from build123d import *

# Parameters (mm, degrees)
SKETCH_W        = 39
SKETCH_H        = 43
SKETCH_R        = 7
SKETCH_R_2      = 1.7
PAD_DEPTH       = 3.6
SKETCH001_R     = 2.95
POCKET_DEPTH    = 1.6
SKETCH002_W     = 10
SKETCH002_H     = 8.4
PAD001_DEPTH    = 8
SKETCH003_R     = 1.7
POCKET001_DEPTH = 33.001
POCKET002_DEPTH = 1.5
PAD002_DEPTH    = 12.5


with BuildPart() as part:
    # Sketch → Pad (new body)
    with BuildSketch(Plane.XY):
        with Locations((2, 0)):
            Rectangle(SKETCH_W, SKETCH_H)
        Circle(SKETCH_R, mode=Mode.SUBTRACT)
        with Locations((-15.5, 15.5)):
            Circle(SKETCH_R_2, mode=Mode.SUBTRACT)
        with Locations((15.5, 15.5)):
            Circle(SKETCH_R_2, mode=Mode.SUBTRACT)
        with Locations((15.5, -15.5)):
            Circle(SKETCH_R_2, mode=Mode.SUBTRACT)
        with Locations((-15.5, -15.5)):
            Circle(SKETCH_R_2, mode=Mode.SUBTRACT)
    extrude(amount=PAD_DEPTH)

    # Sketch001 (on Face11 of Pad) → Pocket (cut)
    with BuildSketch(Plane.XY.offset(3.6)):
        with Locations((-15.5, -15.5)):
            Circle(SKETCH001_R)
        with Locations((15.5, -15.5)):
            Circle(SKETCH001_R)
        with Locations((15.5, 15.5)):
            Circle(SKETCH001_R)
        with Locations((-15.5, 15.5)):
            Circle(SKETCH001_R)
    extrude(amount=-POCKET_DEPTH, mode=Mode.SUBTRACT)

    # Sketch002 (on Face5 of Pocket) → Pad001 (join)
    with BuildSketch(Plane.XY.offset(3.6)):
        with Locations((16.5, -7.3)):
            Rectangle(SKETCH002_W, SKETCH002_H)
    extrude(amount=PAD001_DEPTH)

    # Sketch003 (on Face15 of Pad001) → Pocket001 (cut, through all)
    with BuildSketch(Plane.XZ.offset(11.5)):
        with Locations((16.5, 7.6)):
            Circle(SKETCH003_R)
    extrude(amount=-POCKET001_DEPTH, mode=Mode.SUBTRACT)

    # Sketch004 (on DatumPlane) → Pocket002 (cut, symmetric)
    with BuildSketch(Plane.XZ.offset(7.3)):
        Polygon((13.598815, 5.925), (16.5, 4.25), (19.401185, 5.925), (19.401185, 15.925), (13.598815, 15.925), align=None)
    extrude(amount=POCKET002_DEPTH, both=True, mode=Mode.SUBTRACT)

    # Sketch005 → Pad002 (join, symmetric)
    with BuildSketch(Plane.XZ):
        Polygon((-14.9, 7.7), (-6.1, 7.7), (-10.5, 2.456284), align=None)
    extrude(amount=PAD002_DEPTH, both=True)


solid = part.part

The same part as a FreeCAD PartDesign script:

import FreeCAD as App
import Part
import Sketcher

V = App.Vector
Q = App.Units.Quantity


def add_polygon(sketch, points):
    """Adds a closed chain of lines whose ends are joined by coincident constraints."""
    first, n = sketch.GeometryCount, len(points)
    for a, b in zip(points, points[1:] + points[:1]):
        sketch.addGeometry(Part.LineSegment(App.Vector(*a, 0), App.Vector(*b, 0)), False)
    for i in range(n):
        sketch.addConstraint(Sketcher.Constraint("Coincident", first + i, 2, first + (i + 1) % n, 1))

doc = App.newDocument("Part")
body = doc.addObject("PartDesign::Body", "Body")

# Sketch on XY plane
sketch1 = doc.addObject("Sketcher::SketchObject", "Sketch")
body.addObject(sketch1)
sketch1.AttachmentSupport = (doc.XY_Plane, [""])
sketch1.MapMode = "FlatFace"
add_polygon(sketch1, [(-17.5, 21.5), (-17.5, -21.5), (21.5, -21.5), (21.5, 21.5)])  # lines 0-3
sketch1.addGeometry(Part.Circle(V(-15.5, -15.5, 0), V(0, 0, 1), 1.7), False)  # 4
sketch1.addGeometry(Part.Circle(V(15.5, -15.5, 0), V(0, 0, 1), 1.7), False)  # 5
sketch1.addGeometry(Part.Circle(V(-15.5, 15.5, 0), V(0, 0, 1), 1.7), False)  # 6
sketch1.addGeometry(Part.Circle(V(0, 0, 0), V(0, 0, 1), 7), False)  # 7
sketch1.addGeometry(Part.Circle(V(15.5, 15.5, 0), V(0, 0, 1), 1.7), False)  # 8
sketch1.addConstraint(Sketcher.Constraint("Vertical", 0))
sketch1.addConstraint(Sketcher.Constraint("Horizontal", 1))
sketch1.addConstraint(Sketcher.Constraint("Vertical", 2))
sketch1.addConstraint(Sketcher.Constraint("Horizontal", 3))
sketch1.addConstraint(Sketcher.Constraint("Coincident", 7, 3, -1, 1))
sketch1.addConstraint(Sketcher.Constraint("Equal", 4, 5))
sketch1.addConstraint(Sketcher.Constraint("Equal", 5, 6))
sketch1.addConstraint(Sketcher.Constraint("Equal", 6, 8))
sketch1.addConstraint(Sketcher.Constraint("Symmetric", 5, 3, 6, 3, -1, 1))
sketch1.addConstraint(Sketcher.Constraint("Symmetric", 4, 3, 8, 3, -1, 1))
sketch1.addConstraint(Sketcher.Constraint("Symmetric", 4, 3, 5, 3, -2))
sketch1.addConstraint(Sketcher.Constraint("Diameter", 7, 14.0))
sketch1.addConstraint(Sketcher.Constraint("Diameter", 4, 3.4))
sketch1.addConstraint(Sketcher.Constraint("DistanceX", 1, 1, 1, 2, 39.0))
sketch1.addConstraint(Sketcher.Constraint("DistanceY", 0, 2, 0, 1, 43.0))
sketch1.addConstraint(Sketcher.Constraint("DistanceX", 4, 3, 5, 3, 31.0))
sketch1.addConstraint(Sketcher.Constraint("DistanceY", 4, 3, 6, 3, 31.0))
sketch1.addConstraint(Sketcher.Constraint("DistanceX", 0, 2, 4, 3, 2.0))
sketch1.addConstraint(Sketcher.Constraint("DistanceY", 0, 2, 4, 3, 6.0))
pad1 = doc.addObject("PartDesign::Pad", "Pad")
body.addObject(pad1)
pad1.Profile = sketch1
pad1.Length = 3.6

# Sketch on XY plane
sketch2 = doc.addObject("Sketcher::SketchObject", "Sketch001")
body.addObject(sketch2)
sketch2.AttachmentSupport = (doc.XY_Plane, [""])
sketch2.MapMode = "FlatFace"
sketch2.AttachmentOffset = App.Placement(V(0, 0, 3.6), App.Rotation())
sketch2.addGeometry(Part.Circle(V(-15.5, -15.5, 0), V(0, 0, 1), 3), False)
sketch2.addGeometry(Part.Circle(V(15.5, -15.5, 0), V(0, 0, 1), 3), False)
sketch2.addGeometry(Part.Circle(V(15.5, 15.5, 0), V(0, 0, 1), 3), False)
sketch2.addGeometry(Part.Circle(V(-15.5, 15.5, 0), V(0, 0, 1), 3), False)
sketch2.addConstraint(Sketcher.Constraint("Equal", 0, 1))
sketch2.addConstraint(Sketcher.Constraint("Equal", 1, 2))
sketch2.addConstraint(Sketcher.Constraint("Equal", 2, 3))
sketch2.addConstraint(Sketcher.Constraint("Symmetric", 0, 3, 2, 3, -1, 1))
sketch2.addConstraint(Sketcher.Constraint("Symmetric", 1, 3, 3, 3, -1, 1))
sketch2.addConstraint(Sketcher.Constraint("Symmetric", 0, 3, 1, 3, -2))
sketch2.addConstraint(Sketcher.Constraint("Diameter", 0, 5.9))
sketch2.addConstraint(Sketcher.Constraint("DistanceX", 0, 3, 1, 3, 31.0))
sketch2.addConstraint(Sketcher.Constraint("DistanceY", 1, 3, 2, 3, 31.0))
pocket1 = doc.addObject("PartDesign::Pocket", "Pocket")
body.addObject(pocket1)
pocket1.Profile = sketch2
pocket1.Length = 1.6

# Sketch on XY plane
sketch3 = doc.addObject("Sketcher::SketchObject", "Sketch002")
body.addObject(sketch3)
sketch3.AttachmentSupport = (doc.XY_Plane, [""])
sketch3.MapMode = "FlatFace"
sketch3.AttachmentOffset = App.Placement(V(0, 0, 3.6), App.Rotation())
add_polygon(sketch3, [(12, -3), (12, -12), (22, -12), (22, -3)])  # lines 0-3
sketch3.addConstraint(Sketcher.Constraint("Vertical", 0))
sketch3.addConstraint(Sketcher.Constraint("Horizontal", 1))
sketch3.addConstraint(Sketcher.Constraint("Vertical", 2))
sketch3.addConstraint(Sketcher.Constraint("Horizontal", 3))
sketch3.addConstraint(Sketcher.Constraint("DistanceX", 1, 1, 1, 2, 10.0))
sketch3.addConstraint(Sketcher.Constraint("DistanceY", 0, 2, 0, 1, 8.4))
sketch3.addConstraint(Sketcher.Constraint("DistanceX", -1, 1, 0, 2, 11.5))
sketch3.addConstraint(Sketcher.Constraint("DistanceY", 0, 2, -1, 1, 11.5))
pad2 = doc.addObject("PartDesign::Pad", "Pad001")
body.addObject(pad2)
pad2.Profile = sketch3
pad2.Length = 8

# Sketch on XZ plane
sketch4 = doc.addObject("Sketcher::SketchObject", "Sketch003")
body.addObject(sketch4)
sketch4.AttachmentSupport = (doc.XZ_Plane, [""])
sketch4.MapMode = "FlatFace"
sketch4.AttachmentOffset = App.Placement(V(0, 0, 11.5), App.Rotation())
sketch4.addGeometry(Part.Circle(V(16.5, 7.6, 0), V(0, 0, 1), 1.7), False)
sketch4.addConstraint(Sketcher.Constraint("Diameter", 0, 3.4))
sketch4.addConstraint(Sketcher.Constraint("DistanceX", -1, 1, 0, 3, 16.5))
sketch4.addConstraint(Sketcher.Constraint("DistanceY", -1, 1, 0, 3, 7.6))
pocket2 = doc.addObject("PartDesign::Pocket", "Pocket001")
body.addObject(pocket2)
pocket2.Profile = sketch4
pocket2.Type = "ThroughAll"

# Sketch on XZ plane
sketch5 = doc.addObject("Sketcher::SketchObject", "Sketch004")
body.addObject(sketch5)
sketch5.AttachmentSupport = (doc.XZ_Plane, [""])
sketch5.MapMode = "FlatFace"
sketch5.AttachmentOffset = App.Placement(V(0, 0, 7.3), App.Rotation())
add_polygon(sketch5, [(13.6, 5.9), (16.5, 4.2), (19.4, 5.9), (19.4, 15.9), (13.6, 15.9)])  # lines 0-4
sketch5.addConstraint(Sketcher.Constraint("Vertical", 2))
sketch5.addConstraint(Sketcher.Constraint("Horizontal", 3))
sketch5.addConstraint(Sketcher.Constraint("Vertical", 4))
sketch5.addConstraint(Sketcher.Constraint("Horizontal", 1, 2, 4, 2))
sketch5.addConstraint(Sketcher.Constraint("Equal", 0, 1))
sketch5.addConstraint(Sketcher.Constraint("DistanceY", 2, 1, 2, 2, 10.0))
sketch5.addConstraint(Sketcher.Constraint("Angle", 0, Q("-30.000001 deg")))
sketch5.addConstraint(Sketcher.Constraint("DistanceX", -1, 1, 0, 2, 16.5))
sketch5.addConstraint(Sketcher.Constraint("Distance", 0, 3.35))
sketch5.addConstraint(Sketcher.Constraint("DistanceY", -1, 1, 0, 2, 4.25))
pocket3 = doc.addObject("PartDesign::Pocket", "Pocket002")
body.addObject(pocket3)
pocket3.Profile = sketch5
pocket3.Length = 3
pocket3.Midplane = True

# Sketch on XZ plane
sketch6 = doc.addObject("Sketcher::SketchObject", "Sketch005")
body.addObject(sketch6)
sketch6.AttachmentSupport = (doc.XZ_Plane, [""])
sketch6.MapMode = "FlatFace"
add_polygon(sketch6, [(-6, 8), (-15, 8), (-10, 2)])  # lines 0-2
sketch6.addConstraint(Sketcher.Constraint("Horizontal", 0))
sketch6.addConstraint(Sketcher.Constraint("Equal", 1, 2))
sketch6.addConstraint(Sketcher.Constraint("Angle", 1, Q("-50.000001 deg")))
sketch6.addConstraint(Sketcher.Constraint("DistanceX", 0, 2, 0, 1, 8.8))
sketch6.addConstraint(Sketcher.Constraint("DistanceX", 0, 2, -1, 1, 14.9))
sketch6.addConstraint(Sketcher.Constraint("DistanceY", -1, 1, 0, 2, 7.7))
pad3 = doc.addObject("PartDesign::Pad", "Pad002")
body.addObject(pad3)
pad3.Profile = sketch6
pad3.Length = 25
pad3.Midplane = True

doc.recompute()
